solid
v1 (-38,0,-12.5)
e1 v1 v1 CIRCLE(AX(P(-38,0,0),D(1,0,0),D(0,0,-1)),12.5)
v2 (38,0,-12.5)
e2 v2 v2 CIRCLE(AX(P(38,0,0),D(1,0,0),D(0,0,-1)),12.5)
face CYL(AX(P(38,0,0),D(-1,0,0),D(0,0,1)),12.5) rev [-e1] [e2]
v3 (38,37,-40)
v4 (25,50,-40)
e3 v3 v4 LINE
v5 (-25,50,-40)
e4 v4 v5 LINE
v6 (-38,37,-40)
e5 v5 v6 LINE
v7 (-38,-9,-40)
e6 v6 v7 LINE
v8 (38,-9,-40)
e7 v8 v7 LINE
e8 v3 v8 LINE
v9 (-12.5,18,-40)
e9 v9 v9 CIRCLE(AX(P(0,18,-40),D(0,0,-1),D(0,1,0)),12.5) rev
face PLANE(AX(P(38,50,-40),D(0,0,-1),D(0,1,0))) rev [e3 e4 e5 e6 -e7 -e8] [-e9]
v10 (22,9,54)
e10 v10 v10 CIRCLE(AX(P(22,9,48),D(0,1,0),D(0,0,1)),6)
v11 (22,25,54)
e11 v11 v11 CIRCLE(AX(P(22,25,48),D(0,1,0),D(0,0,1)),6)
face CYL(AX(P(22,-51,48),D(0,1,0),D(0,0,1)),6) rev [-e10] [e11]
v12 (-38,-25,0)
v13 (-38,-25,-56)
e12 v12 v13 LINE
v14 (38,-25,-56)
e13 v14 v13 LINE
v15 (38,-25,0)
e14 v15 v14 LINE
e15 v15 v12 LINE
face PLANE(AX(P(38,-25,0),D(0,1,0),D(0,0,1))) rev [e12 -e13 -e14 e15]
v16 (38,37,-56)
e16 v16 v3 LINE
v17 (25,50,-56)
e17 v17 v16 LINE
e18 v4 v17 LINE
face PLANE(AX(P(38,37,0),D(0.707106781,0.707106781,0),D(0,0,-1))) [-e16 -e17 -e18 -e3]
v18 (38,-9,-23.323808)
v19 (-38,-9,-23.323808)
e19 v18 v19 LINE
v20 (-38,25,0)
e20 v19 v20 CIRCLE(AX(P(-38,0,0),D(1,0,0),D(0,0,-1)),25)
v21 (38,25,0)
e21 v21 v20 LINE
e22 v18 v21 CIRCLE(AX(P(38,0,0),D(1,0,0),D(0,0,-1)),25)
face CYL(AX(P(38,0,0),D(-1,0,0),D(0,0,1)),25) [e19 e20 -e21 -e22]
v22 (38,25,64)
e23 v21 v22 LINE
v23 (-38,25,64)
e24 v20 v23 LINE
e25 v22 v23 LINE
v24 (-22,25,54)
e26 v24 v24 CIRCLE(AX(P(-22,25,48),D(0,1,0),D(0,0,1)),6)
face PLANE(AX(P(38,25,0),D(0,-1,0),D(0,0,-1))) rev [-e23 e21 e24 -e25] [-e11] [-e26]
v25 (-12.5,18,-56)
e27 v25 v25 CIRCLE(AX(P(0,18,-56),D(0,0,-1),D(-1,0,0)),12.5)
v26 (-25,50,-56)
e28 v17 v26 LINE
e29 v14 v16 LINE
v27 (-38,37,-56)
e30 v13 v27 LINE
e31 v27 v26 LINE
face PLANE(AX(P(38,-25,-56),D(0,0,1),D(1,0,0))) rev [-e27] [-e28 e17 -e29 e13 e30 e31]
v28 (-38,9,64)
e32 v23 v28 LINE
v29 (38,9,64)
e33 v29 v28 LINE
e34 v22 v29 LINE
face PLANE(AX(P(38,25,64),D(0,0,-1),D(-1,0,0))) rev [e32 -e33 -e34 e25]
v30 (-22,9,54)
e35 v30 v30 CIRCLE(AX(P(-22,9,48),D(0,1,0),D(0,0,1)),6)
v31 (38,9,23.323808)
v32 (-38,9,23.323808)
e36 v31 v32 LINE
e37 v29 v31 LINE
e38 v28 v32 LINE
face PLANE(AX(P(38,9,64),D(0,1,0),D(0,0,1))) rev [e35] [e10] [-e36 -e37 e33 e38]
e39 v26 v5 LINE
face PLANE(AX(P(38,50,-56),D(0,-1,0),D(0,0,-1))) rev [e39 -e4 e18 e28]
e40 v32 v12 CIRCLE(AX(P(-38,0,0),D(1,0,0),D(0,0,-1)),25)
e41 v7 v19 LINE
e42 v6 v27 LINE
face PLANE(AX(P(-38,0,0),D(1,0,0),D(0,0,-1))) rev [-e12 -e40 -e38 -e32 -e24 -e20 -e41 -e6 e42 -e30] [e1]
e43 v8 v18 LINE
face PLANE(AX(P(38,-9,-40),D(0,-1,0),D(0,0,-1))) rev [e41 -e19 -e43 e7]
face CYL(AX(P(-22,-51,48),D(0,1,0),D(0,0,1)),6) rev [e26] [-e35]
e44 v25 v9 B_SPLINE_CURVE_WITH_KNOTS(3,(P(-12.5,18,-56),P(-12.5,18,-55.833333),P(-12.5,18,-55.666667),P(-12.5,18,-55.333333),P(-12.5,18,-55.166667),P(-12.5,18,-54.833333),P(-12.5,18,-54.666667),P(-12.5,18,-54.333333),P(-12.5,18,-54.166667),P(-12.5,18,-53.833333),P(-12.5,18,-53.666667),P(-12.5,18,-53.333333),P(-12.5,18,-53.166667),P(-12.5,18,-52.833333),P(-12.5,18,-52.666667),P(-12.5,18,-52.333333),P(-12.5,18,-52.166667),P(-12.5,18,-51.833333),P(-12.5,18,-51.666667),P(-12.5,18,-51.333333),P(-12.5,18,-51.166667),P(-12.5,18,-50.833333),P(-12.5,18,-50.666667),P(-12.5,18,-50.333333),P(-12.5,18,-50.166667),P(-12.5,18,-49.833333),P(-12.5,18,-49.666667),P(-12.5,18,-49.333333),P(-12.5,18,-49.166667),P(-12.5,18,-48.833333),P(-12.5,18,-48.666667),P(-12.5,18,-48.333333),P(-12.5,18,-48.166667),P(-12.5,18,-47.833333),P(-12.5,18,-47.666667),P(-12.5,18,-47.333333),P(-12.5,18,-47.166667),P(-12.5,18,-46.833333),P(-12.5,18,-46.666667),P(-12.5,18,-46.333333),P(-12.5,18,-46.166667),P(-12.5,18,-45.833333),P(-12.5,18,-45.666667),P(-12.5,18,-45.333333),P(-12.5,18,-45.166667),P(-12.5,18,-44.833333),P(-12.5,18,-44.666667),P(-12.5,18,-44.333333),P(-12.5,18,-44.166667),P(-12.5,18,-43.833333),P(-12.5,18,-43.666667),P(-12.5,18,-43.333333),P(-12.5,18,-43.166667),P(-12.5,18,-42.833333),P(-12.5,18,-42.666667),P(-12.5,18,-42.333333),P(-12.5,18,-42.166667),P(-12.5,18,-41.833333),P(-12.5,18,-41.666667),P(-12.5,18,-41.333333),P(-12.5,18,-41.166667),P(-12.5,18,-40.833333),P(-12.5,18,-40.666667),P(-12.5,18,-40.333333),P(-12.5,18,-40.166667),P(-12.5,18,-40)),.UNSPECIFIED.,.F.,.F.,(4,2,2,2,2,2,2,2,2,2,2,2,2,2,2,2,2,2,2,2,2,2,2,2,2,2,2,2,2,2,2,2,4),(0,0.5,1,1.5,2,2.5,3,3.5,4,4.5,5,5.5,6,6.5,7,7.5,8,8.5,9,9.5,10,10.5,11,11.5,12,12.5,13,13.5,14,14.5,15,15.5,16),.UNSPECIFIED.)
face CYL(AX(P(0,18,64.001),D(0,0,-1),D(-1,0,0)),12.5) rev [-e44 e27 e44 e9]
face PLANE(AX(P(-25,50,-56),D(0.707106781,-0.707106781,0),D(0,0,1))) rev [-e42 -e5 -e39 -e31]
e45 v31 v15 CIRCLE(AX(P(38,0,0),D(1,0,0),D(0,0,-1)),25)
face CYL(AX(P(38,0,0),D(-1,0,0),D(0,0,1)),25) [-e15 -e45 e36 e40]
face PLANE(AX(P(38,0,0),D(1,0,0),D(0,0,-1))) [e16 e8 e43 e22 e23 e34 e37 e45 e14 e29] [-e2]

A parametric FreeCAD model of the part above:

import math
import FreeCAD as App
import Part
import Sketcher
Q = App.Units.Quantity


def edges_at(feature, points):
    """Names of the edges that pass closest to the given points."""
    edges = feature.Shape.Edges
    near = lambda p: min(range(len(edges)), key=lambda i: edges[i].distToShape(Part.Vertex(*p))[0])
    return sorted({f"Edge{near(p) + 1}" for p in points})

doc = App.newDocument("Part")
body = doc.addObject("PartDesign::Body", "Body")

# Sketch on YZ plane
sketch1 = doc.addObject("Sketcher::SketchObject", "Sketch")
body.addObject(sketch1)
sketch1.AttachmentSupport = (doc.YZ_Plane, [""])
sketch1.MapMode = "FlatFace"
sketch1.addGeometry([
    Part.LineSegment(App.Vector(25, 0, 0), App.Vector(25, 64, 0)),  # 0
    Part.LineSegment(App.Vector(25, 64, 0), App.Vector(9, 64, 0)),  # 1
    Part.LineSegment(App.Vector(9, 64, 0), App.Vector(9, 23, 0)),  # 2
    Part.ArcOfCircle(Part.Circle(App.Vector(0, 0, 0), App.Vector(0, 0, 1), 25), math.radians(69), math.radians(180)),  # 3
    Part.LineSegment(App.Vector(-25, 0, 0), App.Vector(-25, -56, 0)),  # 4
    Part.LineSegment(App.Vector(-25, -56, 0), App.Vector(50, -56, 0)),  # 5
    Part.LineSegment(App.Vector(50, -56, 0), App.Vector(50, -40, 0)),  # 6
    Part.LineSegment(App.Vector(50, -40, 0), App.Vector(-9, -40, 0)),  # 7
    Part.LineSegment(App.Vector(-9, -40, 0), App.Vector(-9, -23, 0)),  # 8
    Part.ArcOfCircle(Part.Circle(App.Vector(0, 0, 0), App.Vector(0, 0, 1), 25), math.radians(-111), math.radians(0)),  # 9
    Part.Circle(App.Vector(0, 0, 0), App.Vector(0, 0, 1), 12),  # 10
], False)
sketch1.addConstraint([
    Sketcher.Constraint("Coincident", 0, 2, 1, 1),
    Sketcher.Constraint("Coincident", 1, 2, 2, 1),
    Sketcher.Constraint("Coincident", 2, 2, 3, 1),
    Sketcher.Constraint("Tangent", 3, 2, 4, 1),
    Sketcher.Constraint("Coincident", 4, 2, 5, 1),
    Sketcher.Constraint("Coincident", 5, 2, 6, 1),
    Sketcher.Constraint("Coincident", 6, 2, 7, 1),
    Sketcher.Constraint("Coincident", 7, 2, 8, 1),
    Sketcher.Constraint("Coincident", 8, 2, 9, 1),
    Sketcher.Constraint("Tangent", 9, 2, 0, 1),
    Sketcher.Constraint("Vertical", 0),
    Sketcher.Constraint("Horizontal", 1),
    Sketcher.Constraint("Vertical", 2),
    Sketcher.Constraint("Vertical", 4),
    Sketcher.Constraint("Horizontal", 5),
    Sketcher.Constraint("Vertical", 6),
    Sketcher.Constraint("Horizontal", 7),
    Sketcher.Constraint("Vertical", 8),
    Sketcher.Constraint("Coincident", 3, 3, -1, 1),
    Sketcher.Constraint("Coincident", 9, 3, -1, 1),
    Sketcher.Constraint("Coincident", 10, 3, -1, 1),
    Sketcher.Constraint("Equal", 3, 9),
    Sketcher.Constraint("Equal", 1, 6),
    Sketcher.Constraint("Diameter", 10, Q("25 mm")),
    Sketcher.Constraint("Radius", 3, Q("25 mm")),
    Sketcher.Constraint("DistanceX", 1, 2, 1, 1, Q("16 mm")),
    Sketcher.Constraint("DistanceX", 5, 1, 5, 2, Q("75 mm")),
    Sketcher.Constraint("DistanceX", 7, 2, 7, 1, Q("59 mm")),
    Sketcher.Constraint("DistanceY", 0, 1, 0, 2, Q("64 mm")),
    Sketcher.Constraint("DistanceY", 4, 2, 4, 1, Q("56 mm")),
])
pad1 = doc.addObject("PartDesign::Pad", "Pad")
body.addObject(pad1)
pad1.Profile = sketch1
pad1.Length = 76
pad1.Midplane = True

# Sketch on XZ plane
sketch2 = doc.addObject("Sketcher::SketchObject", "Sketch001")
body.addObject(sketch2)
sketch2.AttachmentSupport = (doc.XZ_Plane, [""])
sketch2.MapMode = "FlatFace"
sketch2.AttachmentOffset = App.Placement(App.Vector(0, 0, -25), App.Rotation())
sketch2.addGeometry([
    Part.Circle(App.Vector(-22, 48, 0), App.Vector(0, 0, 1), 6),
    Part.Circle(App.Vector(22, 48, 0), App.Vector(0, 0, 1), 6),
], False)
sketch2.addConstraint([
    Sketcher.Constraint("Equal", 0, 1),
    Sketcher.Constraint("Symmetric", 0, 3, 1, 3, -2),
    Sketcher.Constraint("Diameter", 0, Q("12 mm")),
    Sketcher.Constraint("DistanceX", 0, 3, -1, 1, Q("22 mm")),
    Sketcher.Constraint("DistanceY", -1, 1, 0, 3, Q("48 mm")),
])
pocket1 = doc.addObject("PartDesign::Pocket", "Pocket")
body.addObject(pocket1)
pocket1.Profile = sketch2
pocket1.Length = 76
pocket1.Reversed = True

# Sketch on XY plane
sketch3 = doc.addObject("Sketcher::SketchObject", "Sketch002")
body.addObject(sketch3)
sketch3.AttachmentSupport = (doc.XY_Plane, [""])
sketch3.MapMode = "FlatFace"
sketch3.AttachmentOffset = App.Placement(App.Vector(0, 0, -56), App.Rotation())
sketch3.addGeometry(Part.Circle(App.Vector(0, 18, 0), App.Vector(0, 0, 1), 12), False)
sketch3.addConstraint([
    Sketcher.Constraint("PointOnObject", 0, 3, -2),
    Sketcher.Constraint("Diameter", 0, Q("25 mm")),
    Sketcher.Constraint("DistanceY", -1, 1, 0, 3, Q("18 mm")),
])
pocket2 = doc.addObject("PartDesign::Pocket", "Pocket001")
body.addObject(pocket2)
pocket2.Profile = sketch3
pocket2.Type = "UpToFirst"
pocket2.Reversed = True
doc.recompute()

chamfer = doc.addObject("PartDesign::Chamfer", "Chamfer")
body.addObject(chamfer)
chamfer.Base = (pocket2, edges_at(pocket2, [(-38, 50, -48), (38, 50, -48)]))
chamfer.Size = 13

doc.recompute()
